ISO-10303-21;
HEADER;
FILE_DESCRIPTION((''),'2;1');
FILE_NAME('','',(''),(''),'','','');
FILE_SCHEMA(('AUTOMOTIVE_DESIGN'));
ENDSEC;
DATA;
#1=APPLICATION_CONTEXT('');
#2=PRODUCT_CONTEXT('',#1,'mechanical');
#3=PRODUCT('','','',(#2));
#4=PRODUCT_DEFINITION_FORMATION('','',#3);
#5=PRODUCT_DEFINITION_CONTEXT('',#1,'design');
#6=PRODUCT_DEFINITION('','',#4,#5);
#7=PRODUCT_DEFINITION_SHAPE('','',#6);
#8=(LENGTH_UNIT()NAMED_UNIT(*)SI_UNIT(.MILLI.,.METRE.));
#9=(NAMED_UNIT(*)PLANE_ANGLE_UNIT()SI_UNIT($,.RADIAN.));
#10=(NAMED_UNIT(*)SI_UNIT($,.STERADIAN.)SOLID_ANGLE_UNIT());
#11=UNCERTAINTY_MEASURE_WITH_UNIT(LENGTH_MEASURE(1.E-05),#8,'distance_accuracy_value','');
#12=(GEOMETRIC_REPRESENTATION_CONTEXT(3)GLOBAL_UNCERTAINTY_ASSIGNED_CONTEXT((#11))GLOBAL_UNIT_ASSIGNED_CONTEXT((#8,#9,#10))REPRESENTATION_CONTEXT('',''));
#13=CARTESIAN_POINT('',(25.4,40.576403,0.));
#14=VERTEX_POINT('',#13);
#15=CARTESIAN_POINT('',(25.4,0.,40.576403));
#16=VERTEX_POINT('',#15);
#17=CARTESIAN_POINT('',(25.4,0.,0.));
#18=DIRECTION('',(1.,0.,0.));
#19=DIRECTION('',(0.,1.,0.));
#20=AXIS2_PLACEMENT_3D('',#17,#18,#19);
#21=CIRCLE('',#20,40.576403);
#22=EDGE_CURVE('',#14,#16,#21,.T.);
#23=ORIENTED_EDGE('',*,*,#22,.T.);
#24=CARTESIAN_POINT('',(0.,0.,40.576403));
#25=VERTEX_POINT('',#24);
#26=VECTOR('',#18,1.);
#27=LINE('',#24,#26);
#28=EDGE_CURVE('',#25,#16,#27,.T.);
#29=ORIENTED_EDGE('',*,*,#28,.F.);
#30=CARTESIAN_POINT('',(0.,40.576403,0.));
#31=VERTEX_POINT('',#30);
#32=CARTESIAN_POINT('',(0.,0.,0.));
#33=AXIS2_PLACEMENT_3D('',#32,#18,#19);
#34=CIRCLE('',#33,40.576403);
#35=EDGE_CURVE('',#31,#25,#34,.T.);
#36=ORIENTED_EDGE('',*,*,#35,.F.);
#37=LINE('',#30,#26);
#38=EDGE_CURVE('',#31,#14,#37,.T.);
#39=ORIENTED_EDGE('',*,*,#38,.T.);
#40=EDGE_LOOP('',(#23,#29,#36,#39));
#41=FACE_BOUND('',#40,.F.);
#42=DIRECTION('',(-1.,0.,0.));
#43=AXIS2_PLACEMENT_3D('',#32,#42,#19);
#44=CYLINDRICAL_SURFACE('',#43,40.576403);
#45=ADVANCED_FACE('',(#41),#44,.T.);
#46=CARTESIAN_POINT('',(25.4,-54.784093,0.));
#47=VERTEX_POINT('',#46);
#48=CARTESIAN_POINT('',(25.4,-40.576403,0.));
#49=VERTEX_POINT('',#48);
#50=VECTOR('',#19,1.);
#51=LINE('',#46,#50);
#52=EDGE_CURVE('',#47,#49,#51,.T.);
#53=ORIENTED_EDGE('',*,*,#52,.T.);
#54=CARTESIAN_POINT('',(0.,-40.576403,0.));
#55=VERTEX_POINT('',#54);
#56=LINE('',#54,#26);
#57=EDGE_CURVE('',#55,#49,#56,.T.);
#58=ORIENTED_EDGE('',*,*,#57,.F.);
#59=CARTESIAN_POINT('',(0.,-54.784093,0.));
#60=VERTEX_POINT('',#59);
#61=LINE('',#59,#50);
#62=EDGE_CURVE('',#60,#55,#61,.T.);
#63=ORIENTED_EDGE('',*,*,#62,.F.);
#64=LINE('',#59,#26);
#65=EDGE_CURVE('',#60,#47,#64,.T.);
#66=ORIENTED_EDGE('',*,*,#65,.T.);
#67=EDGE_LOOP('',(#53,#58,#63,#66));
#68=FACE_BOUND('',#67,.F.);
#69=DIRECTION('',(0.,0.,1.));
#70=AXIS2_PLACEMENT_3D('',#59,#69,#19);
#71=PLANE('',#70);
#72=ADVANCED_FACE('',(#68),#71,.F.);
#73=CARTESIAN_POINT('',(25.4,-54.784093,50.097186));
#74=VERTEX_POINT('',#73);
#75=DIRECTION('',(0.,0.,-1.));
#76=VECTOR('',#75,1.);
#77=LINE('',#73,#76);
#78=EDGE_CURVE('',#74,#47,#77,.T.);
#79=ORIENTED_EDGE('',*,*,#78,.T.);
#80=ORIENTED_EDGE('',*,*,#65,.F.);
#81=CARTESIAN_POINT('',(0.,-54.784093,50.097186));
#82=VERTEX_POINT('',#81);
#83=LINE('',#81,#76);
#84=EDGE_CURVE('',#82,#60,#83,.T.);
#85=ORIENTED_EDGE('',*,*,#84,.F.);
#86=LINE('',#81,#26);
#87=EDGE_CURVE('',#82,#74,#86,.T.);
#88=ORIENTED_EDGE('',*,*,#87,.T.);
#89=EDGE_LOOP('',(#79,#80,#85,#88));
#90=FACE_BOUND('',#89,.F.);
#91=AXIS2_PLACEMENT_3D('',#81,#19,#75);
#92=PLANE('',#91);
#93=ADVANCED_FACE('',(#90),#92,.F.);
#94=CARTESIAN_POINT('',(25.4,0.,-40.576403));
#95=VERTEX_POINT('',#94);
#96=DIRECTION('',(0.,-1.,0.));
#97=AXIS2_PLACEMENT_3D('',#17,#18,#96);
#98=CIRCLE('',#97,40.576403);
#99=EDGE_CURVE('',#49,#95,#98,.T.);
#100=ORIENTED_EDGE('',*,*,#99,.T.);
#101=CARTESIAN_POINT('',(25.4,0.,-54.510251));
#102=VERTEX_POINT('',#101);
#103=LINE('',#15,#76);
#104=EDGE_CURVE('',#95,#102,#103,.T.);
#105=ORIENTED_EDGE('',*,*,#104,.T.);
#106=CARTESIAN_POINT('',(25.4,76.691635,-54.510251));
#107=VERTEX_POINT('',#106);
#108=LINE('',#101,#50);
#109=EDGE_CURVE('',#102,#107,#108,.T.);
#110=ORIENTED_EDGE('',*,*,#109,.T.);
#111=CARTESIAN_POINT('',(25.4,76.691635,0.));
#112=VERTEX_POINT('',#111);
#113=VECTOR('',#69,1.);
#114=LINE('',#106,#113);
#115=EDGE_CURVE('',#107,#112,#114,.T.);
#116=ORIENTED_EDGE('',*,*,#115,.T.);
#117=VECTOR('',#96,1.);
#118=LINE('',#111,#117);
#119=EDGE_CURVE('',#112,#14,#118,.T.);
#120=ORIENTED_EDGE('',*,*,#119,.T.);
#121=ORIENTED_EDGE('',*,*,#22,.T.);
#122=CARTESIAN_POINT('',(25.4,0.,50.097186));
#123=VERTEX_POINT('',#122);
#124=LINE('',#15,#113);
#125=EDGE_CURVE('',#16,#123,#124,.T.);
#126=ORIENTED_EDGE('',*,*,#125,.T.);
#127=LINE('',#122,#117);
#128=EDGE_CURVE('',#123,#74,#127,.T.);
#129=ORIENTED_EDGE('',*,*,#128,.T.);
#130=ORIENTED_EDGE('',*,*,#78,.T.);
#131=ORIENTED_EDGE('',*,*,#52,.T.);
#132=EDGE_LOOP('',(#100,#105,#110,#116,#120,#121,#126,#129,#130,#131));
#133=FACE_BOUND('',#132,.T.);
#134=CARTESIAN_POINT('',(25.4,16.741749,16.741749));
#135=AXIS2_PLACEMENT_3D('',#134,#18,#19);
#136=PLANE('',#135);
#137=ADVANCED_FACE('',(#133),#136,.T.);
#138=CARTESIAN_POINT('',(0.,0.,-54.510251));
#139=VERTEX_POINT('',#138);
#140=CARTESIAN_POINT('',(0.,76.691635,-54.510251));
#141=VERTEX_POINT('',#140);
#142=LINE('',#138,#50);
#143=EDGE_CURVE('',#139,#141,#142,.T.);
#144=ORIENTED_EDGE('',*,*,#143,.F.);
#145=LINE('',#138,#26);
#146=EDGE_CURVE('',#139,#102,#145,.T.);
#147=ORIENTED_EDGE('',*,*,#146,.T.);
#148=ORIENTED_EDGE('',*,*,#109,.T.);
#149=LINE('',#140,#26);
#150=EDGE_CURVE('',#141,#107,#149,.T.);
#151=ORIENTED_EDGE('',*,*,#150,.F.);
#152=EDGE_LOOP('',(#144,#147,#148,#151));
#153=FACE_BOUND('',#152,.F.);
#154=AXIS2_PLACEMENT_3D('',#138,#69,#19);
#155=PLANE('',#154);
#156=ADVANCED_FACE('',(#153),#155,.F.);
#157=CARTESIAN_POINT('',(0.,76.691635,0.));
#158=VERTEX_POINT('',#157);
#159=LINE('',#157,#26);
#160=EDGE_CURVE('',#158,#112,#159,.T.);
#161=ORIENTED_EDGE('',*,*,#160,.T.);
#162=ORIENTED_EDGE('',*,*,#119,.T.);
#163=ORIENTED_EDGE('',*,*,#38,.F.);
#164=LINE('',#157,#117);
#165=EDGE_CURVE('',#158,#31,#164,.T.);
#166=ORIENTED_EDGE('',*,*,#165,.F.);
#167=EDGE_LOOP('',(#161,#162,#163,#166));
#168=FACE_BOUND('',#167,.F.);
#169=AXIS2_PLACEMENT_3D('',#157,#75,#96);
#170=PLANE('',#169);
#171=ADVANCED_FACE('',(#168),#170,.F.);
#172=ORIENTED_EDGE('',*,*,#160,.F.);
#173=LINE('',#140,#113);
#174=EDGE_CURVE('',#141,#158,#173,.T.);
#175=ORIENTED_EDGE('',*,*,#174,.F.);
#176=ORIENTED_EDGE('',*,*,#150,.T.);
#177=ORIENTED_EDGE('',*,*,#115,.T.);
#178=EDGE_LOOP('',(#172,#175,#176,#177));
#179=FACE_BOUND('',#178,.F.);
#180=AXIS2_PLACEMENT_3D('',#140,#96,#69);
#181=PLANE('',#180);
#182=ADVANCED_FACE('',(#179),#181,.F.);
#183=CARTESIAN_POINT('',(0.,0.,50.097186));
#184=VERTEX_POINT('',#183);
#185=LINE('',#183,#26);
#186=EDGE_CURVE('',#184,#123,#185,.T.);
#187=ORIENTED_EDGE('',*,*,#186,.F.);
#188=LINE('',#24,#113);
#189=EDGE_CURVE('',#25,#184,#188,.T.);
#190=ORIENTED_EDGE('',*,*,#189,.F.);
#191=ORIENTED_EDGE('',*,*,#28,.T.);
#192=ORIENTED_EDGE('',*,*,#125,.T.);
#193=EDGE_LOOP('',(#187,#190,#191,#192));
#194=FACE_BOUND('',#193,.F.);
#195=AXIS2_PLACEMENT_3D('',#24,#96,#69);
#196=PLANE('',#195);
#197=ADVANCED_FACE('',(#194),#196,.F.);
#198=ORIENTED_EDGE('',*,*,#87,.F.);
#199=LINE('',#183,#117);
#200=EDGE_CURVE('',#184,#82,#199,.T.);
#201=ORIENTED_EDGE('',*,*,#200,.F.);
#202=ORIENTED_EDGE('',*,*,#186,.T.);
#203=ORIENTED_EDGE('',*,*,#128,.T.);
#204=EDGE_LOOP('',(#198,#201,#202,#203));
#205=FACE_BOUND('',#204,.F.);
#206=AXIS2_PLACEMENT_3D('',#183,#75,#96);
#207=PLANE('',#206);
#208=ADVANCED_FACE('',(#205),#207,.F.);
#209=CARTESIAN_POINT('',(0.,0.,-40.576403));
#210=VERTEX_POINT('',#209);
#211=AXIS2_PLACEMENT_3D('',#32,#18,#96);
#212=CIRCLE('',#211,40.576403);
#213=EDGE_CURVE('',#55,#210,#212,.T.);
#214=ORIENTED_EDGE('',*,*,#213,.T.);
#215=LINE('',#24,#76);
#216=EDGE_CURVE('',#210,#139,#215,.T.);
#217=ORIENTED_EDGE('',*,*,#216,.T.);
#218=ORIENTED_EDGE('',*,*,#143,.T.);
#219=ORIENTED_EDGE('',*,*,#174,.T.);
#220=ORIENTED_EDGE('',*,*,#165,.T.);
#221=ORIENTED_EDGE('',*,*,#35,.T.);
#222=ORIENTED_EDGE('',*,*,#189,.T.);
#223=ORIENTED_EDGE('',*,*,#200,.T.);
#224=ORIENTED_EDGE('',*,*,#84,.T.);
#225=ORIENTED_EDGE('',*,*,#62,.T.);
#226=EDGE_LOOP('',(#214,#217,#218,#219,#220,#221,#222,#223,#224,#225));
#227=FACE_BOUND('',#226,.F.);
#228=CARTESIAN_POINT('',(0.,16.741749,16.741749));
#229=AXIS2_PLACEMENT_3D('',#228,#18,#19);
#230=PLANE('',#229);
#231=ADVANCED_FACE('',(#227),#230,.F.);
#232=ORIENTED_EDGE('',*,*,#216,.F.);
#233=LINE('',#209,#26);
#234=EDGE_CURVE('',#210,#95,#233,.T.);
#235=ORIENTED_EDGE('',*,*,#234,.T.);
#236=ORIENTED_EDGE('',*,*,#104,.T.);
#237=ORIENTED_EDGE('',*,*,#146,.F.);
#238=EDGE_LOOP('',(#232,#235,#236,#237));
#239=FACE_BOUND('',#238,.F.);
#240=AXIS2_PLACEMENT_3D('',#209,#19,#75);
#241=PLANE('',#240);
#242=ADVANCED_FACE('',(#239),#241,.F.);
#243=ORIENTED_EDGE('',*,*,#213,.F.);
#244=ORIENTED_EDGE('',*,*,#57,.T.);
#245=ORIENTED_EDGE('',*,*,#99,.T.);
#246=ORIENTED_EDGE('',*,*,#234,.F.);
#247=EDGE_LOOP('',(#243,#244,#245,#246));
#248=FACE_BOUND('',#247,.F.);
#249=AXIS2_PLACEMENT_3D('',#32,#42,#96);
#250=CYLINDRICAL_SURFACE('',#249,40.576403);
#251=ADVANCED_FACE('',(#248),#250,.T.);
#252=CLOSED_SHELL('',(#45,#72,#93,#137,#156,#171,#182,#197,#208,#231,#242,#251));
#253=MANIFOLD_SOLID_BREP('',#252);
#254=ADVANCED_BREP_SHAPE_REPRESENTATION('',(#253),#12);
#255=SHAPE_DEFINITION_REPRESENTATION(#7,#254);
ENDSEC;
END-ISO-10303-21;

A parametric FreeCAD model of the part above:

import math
import FreeCAD as App
import Part
import Sketcher
from FreeCAD import Vector
Q = App.Units.Quantity

doc = App.newDocument("Part")
body = doc.addObject("PartDesign::Body", "Body")

sketch1 = body.newObject("Sketcher::SketchObject", "Sketch")
sketch1.AttachmentSupport = (doc.getObject("YZ_Plane"), [""])
sketch1.MapMode = "FlatFace"
sketch1.addGeometry([
    Part.ArcOfCircle(Part.Circle(Vector(0, 0, 0), Vector(0, 0, 1), 41), math.radians(0), math.radians(90)),
    Part.LineSegment(Vector(0, 41, 0), Vector(0, 50, 0)),
    Part.LineSegment(Vector(0, 50, 0), Vector(-55, 50, 0)),
    Part.LineSegment(Vector(-55, 50, 0), Vector(-55, 0, 0)),
    Part.LineSegment(Vector(-55, 0, 0), Vector(-41, 0, 0)),
    Part.ArcOfCircle(Part.Circle(Vector(0, 0, 0), Vector(0, 0, 1), 41), math.radians(180), math.radians(270)),
    Part.LineSegment(Vector(0, -41, 0), Vector(0, -55, 0)),
    Part.LineSegment(Vector(0, -55, 0), Vector(77, -55, 0)),
    Part.LineSegment(Vector(77, -55, 0), Vector(77, 0, 0)),
    Part.LineSegment(Vector(77, 0, 0), Vector(41, 0, 0)),
], False)
sketch1.addConstraint([
    Sketcher.Constraint("Coincident", 0, 2, 1, 1),
    Sketcher.Constraint("Coincident", 1, 2, 2, 1),
    Sketcher.Constraint("Coincident", 2, 2, 3, 1),
    Sketcher.Constraint("Coincident", 3, 2, 4, 1),
    Sketcher.Constraint("Coincident", 4, 2, 5, 1),
    Sketcher.Constraint("Coincident", 5, 2, 6, 1),
    Sketcher.Constraint("Coincident", 6, 2, 7, 1),
    Sketcher.Constraint("Coincident", 7, 2, 8, 1),
    Sketcher.Constraint("Coincident", 8, 2, 9, 1),
    Sketcher.Constraint("Coincident", 9, 2, 0, 1),
    Sketcher.Constraint("Vertical", 1),
    Sketcher.Constraint("Horizontal", 2),
    Sketcher.Constraint("Vertical", 3),
    Sketcher.Constraint("Horizontal", 4),
    Sketcher.Constraint("Vertical", 6),
    Sketcher.Constraint("Horizontal", 7),
    Sketcher.Constraint("Vertical", 8),
    Sketcher.Constraint("Horizontal", 9),
    Sketcher.Constraint("Coincident", 0, 3, -1, 1),
    Sketcher.Constraint("Coincident", 5, 3, -1, 1),
    Sketcher.Constraint("Equal", 0, 5),
    Sketcher.Constraint("PointOnObject", 0, 2, -2),
    Sketcher.Constraint("PointOnObject", 3, 2, -1),
    Sketcher.Constraint("PointOnObject", 5, 2, -2),
    Sketcher.Constraint("PointOnObject", 8, 2, -1),
    Sketcher.Constraint("Radius", 0, 40.576403),
    Sketcher.Constraint("DistanceX", 4, 1, 4, 2, 14.20769),
    Sketcher.Constraint("DistanceX", 9, 2, 9, 1, 36.115232),
    Sketcher.Constraint("DistanceY", 8, 1, 8, 2, 54.510251),
    Sketcher.Constraint("DistanceY", 1, 1, 1, 2, 9.520783),
])
pad1 = body.newObject("PartDesign::Pad", "Pad")
pad1.Profile = sketch1
pad1.Length = Q("1 in")

doc.recompute()
